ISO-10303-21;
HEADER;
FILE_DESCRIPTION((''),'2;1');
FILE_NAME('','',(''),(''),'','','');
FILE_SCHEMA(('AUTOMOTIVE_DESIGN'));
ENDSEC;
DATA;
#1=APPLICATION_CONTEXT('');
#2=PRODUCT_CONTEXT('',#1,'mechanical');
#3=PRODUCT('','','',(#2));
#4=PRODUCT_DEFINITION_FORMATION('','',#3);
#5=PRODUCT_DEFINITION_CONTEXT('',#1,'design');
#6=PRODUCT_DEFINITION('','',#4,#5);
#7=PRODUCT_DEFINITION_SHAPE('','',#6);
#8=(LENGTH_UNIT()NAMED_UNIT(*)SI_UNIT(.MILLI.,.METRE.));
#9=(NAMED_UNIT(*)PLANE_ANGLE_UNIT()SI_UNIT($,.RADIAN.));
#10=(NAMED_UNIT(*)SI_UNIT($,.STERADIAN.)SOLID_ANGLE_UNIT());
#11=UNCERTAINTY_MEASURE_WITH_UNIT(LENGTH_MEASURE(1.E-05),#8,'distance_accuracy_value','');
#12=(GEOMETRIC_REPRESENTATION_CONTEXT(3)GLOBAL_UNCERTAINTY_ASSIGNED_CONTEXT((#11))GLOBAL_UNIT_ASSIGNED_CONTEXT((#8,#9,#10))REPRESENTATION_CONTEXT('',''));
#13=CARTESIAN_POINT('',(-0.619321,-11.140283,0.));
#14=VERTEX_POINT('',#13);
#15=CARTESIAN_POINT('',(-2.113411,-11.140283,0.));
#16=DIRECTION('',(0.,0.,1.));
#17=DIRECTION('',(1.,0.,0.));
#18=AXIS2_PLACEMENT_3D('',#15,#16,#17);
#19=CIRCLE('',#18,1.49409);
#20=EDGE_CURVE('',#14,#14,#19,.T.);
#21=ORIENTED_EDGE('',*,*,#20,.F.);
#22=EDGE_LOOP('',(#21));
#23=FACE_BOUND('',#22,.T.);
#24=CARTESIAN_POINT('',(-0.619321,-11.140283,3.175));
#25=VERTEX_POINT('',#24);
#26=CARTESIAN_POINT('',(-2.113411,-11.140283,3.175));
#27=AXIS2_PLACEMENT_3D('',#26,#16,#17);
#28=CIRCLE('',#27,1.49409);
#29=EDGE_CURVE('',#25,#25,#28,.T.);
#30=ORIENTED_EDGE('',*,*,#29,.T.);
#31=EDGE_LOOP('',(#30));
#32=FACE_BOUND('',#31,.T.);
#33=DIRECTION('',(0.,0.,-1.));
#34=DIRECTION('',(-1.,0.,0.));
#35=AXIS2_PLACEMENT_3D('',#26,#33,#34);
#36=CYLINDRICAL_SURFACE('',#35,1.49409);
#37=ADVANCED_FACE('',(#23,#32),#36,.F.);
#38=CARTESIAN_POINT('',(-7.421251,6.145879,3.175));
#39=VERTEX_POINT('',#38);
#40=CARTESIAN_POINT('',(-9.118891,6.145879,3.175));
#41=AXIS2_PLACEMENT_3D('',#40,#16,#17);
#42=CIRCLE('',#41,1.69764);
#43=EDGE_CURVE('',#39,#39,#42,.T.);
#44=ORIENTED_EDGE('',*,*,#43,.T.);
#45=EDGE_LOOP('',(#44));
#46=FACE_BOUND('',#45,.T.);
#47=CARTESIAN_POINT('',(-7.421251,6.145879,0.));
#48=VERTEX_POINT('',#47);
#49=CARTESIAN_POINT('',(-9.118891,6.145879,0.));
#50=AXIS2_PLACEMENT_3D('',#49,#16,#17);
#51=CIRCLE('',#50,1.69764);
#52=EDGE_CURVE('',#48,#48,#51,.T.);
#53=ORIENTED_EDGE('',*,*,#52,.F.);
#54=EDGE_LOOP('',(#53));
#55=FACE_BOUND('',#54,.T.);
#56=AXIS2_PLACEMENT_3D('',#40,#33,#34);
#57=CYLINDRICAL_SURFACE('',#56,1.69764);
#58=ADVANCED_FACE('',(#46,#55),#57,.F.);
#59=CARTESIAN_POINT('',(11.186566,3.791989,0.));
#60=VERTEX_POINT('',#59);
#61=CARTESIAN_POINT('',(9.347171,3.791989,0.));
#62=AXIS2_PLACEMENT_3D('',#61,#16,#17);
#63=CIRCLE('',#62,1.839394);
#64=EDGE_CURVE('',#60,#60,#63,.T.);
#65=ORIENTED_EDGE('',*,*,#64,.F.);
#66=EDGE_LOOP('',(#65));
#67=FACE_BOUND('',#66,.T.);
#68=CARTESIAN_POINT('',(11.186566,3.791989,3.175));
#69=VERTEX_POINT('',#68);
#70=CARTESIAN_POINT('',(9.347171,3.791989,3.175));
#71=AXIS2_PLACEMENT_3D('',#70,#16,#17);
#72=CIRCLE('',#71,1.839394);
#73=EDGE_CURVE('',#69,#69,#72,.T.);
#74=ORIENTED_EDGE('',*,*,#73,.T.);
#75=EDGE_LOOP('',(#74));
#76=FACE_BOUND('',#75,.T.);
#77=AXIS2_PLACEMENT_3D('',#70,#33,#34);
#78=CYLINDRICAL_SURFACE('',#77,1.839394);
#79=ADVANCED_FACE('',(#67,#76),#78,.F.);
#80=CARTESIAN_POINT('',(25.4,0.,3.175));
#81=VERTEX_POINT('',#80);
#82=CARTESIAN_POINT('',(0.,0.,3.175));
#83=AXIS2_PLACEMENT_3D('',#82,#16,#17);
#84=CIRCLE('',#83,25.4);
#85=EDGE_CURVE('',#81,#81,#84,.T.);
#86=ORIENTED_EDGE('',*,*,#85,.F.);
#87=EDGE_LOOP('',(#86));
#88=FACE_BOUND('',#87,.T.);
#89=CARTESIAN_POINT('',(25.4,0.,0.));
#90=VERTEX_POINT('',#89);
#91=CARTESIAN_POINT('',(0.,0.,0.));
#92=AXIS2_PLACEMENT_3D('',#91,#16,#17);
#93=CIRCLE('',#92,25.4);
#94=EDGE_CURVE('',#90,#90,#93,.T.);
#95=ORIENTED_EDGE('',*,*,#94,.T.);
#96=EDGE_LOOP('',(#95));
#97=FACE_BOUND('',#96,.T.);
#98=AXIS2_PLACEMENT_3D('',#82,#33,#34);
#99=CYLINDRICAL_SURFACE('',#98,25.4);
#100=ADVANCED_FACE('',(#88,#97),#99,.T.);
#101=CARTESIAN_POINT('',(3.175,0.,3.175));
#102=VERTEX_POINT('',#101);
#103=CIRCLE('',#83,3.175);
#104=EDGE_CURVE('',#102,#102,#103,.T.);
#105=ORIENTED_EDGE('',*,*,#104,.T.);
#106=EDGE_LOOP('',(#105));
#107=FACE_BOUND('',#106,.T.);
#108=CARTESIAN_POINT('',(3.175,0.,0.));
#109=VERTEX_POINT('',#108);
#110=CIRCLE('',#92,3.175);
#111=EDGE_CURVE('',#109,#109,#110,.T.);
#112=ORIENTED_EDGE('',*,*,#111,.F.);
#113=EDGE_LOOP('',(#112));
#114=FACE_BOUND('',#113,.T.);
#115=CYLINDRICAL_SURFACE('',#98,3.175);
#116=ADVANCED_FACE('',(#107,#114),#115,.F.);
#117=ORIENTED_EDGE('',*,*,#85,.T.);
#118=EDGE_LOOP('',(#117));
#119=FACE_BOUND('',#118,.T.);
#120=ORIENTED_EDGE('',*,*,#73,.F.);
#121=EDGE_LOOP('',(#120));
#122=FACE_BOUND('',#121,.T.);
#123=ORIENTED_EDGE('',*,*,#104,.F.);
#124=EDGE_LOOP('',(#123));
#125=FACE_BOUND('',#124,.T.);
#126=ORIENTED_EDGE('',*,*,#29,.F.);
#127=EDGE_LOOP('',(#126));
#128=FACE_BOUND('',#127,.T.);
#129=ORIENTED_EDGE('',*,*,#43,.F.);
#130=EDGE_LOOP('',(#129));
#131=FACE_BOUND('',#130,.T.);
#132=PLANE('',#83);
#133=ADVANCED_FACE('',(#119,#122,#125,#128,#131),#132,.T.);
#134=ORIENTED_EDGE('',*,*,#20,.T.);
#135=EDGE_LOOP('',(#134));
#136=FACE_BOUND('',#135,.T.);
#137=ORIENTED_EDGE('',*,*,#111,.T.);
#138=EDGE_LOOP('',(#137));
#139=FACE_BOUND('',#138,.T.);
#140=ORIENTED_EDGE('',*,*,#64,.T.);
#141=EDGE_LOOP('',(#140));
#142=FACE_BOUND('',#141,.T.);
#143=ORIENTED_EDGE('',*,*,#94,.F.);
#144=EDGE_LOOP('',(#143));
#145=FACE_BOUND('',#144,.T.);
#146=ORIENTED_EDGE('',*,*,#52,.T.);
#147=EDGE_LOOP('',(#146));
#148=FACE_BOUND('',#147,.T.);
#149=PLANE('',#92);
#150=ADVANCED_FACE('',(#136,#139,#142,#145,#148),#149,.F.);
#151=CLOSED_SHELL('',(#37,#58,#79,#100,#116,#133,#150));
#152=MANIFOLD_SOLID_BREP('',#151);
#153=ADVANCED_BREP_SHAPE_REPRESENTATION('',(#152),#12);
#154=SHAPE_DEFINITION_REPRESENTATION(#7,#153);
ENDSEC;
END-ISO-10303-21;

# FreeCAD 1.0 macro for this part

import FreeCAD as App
import Part
import Sketcher
from FreeCAD import Vector
Q = App.Units.Quantity

doc = App.newDocument("Part")
body = doc.addObject("PartDesign::Body", "Body")

sketch1 = doc.addObject("Sketcher::SketchObject", "Sketch")
body.addObject(sketch1)
sketch1.AttachmentSupport = (doc.XY_Plane, [""])
sketch1.MapMode = "FlatFace"
sketch1.addGeometry([
    Part.Circle(Vector(0, 0, 0), Vector(0, 0, 1), 25.4),
    Part.Circle(Vector(0, 0, 0), Vector(0, 0, 1), 3.2),
], False)
sketch1.addConstraint([
    Sketcher.Constraint("Coincident", 0, 3, -1, 1),
    Sketcher.Constraint("Coincident", 1, 3, -1, 1),
    Sketcher.Constraint("Diameter", 0, Q("2 in")),
    Sketcher.Constraint("Diameter", 1, Q("0.25 in")),
])
pad1 = doc.addObject("PartDesign::Pad", "Pad")
body.addObject(pad1)
pad1.Profile = sketch1
pad1.Length = Q("0.125 in")

sketch2 = doc.addObject("Sketcher::SketchObject", "Sketch001")
body.addObject(sketch2)
sketch2.AttachmentSupport = (doc.XY_Plane, [""])
sketch2.MapMode = "FlatFace"
sketch2.addGeometry([
    Part.Circle(Vector(-9.1, 6.1, 0), Vector(0, 0, 1), 1.7),
    Part.Circle(Vector(9.3, 3.8, 0), Vector(0, 0, 1), 1.8),
    Part.Circle(Vector(-2.1, -11.1, 0), Vector(0, 0, 1), 1.5),
], False)
sketch2.addConstraint([
    Sketcher.Constraint("Diameter", 0, Q("3.395281 mm")),
    Sketcher.Constraint("Diameter", 1, Q("3.678789 mm")),
    Sketcher.Constraint("Diameter", 2, Q("2.98818 mm")),
    Sketcher.Constraint("DistanceX", 0, 3, -1, 1, Q("9.118891 mm")),
    Sketcher.Constraint("DistanceY", -1, 1, 0, 3, Q("6.145879 mm")),
    Sketcher.Constraint("DistanceX", -1, 1, 1, 3, Q("9.347171 mm")),
    Sketcher.Constraint("DistanceY", -1, 1, 1, 3, Q("3.791989 mm")),
    Sketcher.Constraint("DistanceX", 2, 3, -1, 1, Q("2.113411 mm")),
    Sketcher.Constraint("DistanceY", 2, 3, -1, 1, Q("11.140283 mm")),
])
pocket1 = doc.addObject("PartDesign::Pocket", "Pocket")
body.addObject(pocket1)
pocket1.Profile = sketch2
pocket1.Type = "ThroughAll"
pocket1.Reversed = True

doc.recompute()
